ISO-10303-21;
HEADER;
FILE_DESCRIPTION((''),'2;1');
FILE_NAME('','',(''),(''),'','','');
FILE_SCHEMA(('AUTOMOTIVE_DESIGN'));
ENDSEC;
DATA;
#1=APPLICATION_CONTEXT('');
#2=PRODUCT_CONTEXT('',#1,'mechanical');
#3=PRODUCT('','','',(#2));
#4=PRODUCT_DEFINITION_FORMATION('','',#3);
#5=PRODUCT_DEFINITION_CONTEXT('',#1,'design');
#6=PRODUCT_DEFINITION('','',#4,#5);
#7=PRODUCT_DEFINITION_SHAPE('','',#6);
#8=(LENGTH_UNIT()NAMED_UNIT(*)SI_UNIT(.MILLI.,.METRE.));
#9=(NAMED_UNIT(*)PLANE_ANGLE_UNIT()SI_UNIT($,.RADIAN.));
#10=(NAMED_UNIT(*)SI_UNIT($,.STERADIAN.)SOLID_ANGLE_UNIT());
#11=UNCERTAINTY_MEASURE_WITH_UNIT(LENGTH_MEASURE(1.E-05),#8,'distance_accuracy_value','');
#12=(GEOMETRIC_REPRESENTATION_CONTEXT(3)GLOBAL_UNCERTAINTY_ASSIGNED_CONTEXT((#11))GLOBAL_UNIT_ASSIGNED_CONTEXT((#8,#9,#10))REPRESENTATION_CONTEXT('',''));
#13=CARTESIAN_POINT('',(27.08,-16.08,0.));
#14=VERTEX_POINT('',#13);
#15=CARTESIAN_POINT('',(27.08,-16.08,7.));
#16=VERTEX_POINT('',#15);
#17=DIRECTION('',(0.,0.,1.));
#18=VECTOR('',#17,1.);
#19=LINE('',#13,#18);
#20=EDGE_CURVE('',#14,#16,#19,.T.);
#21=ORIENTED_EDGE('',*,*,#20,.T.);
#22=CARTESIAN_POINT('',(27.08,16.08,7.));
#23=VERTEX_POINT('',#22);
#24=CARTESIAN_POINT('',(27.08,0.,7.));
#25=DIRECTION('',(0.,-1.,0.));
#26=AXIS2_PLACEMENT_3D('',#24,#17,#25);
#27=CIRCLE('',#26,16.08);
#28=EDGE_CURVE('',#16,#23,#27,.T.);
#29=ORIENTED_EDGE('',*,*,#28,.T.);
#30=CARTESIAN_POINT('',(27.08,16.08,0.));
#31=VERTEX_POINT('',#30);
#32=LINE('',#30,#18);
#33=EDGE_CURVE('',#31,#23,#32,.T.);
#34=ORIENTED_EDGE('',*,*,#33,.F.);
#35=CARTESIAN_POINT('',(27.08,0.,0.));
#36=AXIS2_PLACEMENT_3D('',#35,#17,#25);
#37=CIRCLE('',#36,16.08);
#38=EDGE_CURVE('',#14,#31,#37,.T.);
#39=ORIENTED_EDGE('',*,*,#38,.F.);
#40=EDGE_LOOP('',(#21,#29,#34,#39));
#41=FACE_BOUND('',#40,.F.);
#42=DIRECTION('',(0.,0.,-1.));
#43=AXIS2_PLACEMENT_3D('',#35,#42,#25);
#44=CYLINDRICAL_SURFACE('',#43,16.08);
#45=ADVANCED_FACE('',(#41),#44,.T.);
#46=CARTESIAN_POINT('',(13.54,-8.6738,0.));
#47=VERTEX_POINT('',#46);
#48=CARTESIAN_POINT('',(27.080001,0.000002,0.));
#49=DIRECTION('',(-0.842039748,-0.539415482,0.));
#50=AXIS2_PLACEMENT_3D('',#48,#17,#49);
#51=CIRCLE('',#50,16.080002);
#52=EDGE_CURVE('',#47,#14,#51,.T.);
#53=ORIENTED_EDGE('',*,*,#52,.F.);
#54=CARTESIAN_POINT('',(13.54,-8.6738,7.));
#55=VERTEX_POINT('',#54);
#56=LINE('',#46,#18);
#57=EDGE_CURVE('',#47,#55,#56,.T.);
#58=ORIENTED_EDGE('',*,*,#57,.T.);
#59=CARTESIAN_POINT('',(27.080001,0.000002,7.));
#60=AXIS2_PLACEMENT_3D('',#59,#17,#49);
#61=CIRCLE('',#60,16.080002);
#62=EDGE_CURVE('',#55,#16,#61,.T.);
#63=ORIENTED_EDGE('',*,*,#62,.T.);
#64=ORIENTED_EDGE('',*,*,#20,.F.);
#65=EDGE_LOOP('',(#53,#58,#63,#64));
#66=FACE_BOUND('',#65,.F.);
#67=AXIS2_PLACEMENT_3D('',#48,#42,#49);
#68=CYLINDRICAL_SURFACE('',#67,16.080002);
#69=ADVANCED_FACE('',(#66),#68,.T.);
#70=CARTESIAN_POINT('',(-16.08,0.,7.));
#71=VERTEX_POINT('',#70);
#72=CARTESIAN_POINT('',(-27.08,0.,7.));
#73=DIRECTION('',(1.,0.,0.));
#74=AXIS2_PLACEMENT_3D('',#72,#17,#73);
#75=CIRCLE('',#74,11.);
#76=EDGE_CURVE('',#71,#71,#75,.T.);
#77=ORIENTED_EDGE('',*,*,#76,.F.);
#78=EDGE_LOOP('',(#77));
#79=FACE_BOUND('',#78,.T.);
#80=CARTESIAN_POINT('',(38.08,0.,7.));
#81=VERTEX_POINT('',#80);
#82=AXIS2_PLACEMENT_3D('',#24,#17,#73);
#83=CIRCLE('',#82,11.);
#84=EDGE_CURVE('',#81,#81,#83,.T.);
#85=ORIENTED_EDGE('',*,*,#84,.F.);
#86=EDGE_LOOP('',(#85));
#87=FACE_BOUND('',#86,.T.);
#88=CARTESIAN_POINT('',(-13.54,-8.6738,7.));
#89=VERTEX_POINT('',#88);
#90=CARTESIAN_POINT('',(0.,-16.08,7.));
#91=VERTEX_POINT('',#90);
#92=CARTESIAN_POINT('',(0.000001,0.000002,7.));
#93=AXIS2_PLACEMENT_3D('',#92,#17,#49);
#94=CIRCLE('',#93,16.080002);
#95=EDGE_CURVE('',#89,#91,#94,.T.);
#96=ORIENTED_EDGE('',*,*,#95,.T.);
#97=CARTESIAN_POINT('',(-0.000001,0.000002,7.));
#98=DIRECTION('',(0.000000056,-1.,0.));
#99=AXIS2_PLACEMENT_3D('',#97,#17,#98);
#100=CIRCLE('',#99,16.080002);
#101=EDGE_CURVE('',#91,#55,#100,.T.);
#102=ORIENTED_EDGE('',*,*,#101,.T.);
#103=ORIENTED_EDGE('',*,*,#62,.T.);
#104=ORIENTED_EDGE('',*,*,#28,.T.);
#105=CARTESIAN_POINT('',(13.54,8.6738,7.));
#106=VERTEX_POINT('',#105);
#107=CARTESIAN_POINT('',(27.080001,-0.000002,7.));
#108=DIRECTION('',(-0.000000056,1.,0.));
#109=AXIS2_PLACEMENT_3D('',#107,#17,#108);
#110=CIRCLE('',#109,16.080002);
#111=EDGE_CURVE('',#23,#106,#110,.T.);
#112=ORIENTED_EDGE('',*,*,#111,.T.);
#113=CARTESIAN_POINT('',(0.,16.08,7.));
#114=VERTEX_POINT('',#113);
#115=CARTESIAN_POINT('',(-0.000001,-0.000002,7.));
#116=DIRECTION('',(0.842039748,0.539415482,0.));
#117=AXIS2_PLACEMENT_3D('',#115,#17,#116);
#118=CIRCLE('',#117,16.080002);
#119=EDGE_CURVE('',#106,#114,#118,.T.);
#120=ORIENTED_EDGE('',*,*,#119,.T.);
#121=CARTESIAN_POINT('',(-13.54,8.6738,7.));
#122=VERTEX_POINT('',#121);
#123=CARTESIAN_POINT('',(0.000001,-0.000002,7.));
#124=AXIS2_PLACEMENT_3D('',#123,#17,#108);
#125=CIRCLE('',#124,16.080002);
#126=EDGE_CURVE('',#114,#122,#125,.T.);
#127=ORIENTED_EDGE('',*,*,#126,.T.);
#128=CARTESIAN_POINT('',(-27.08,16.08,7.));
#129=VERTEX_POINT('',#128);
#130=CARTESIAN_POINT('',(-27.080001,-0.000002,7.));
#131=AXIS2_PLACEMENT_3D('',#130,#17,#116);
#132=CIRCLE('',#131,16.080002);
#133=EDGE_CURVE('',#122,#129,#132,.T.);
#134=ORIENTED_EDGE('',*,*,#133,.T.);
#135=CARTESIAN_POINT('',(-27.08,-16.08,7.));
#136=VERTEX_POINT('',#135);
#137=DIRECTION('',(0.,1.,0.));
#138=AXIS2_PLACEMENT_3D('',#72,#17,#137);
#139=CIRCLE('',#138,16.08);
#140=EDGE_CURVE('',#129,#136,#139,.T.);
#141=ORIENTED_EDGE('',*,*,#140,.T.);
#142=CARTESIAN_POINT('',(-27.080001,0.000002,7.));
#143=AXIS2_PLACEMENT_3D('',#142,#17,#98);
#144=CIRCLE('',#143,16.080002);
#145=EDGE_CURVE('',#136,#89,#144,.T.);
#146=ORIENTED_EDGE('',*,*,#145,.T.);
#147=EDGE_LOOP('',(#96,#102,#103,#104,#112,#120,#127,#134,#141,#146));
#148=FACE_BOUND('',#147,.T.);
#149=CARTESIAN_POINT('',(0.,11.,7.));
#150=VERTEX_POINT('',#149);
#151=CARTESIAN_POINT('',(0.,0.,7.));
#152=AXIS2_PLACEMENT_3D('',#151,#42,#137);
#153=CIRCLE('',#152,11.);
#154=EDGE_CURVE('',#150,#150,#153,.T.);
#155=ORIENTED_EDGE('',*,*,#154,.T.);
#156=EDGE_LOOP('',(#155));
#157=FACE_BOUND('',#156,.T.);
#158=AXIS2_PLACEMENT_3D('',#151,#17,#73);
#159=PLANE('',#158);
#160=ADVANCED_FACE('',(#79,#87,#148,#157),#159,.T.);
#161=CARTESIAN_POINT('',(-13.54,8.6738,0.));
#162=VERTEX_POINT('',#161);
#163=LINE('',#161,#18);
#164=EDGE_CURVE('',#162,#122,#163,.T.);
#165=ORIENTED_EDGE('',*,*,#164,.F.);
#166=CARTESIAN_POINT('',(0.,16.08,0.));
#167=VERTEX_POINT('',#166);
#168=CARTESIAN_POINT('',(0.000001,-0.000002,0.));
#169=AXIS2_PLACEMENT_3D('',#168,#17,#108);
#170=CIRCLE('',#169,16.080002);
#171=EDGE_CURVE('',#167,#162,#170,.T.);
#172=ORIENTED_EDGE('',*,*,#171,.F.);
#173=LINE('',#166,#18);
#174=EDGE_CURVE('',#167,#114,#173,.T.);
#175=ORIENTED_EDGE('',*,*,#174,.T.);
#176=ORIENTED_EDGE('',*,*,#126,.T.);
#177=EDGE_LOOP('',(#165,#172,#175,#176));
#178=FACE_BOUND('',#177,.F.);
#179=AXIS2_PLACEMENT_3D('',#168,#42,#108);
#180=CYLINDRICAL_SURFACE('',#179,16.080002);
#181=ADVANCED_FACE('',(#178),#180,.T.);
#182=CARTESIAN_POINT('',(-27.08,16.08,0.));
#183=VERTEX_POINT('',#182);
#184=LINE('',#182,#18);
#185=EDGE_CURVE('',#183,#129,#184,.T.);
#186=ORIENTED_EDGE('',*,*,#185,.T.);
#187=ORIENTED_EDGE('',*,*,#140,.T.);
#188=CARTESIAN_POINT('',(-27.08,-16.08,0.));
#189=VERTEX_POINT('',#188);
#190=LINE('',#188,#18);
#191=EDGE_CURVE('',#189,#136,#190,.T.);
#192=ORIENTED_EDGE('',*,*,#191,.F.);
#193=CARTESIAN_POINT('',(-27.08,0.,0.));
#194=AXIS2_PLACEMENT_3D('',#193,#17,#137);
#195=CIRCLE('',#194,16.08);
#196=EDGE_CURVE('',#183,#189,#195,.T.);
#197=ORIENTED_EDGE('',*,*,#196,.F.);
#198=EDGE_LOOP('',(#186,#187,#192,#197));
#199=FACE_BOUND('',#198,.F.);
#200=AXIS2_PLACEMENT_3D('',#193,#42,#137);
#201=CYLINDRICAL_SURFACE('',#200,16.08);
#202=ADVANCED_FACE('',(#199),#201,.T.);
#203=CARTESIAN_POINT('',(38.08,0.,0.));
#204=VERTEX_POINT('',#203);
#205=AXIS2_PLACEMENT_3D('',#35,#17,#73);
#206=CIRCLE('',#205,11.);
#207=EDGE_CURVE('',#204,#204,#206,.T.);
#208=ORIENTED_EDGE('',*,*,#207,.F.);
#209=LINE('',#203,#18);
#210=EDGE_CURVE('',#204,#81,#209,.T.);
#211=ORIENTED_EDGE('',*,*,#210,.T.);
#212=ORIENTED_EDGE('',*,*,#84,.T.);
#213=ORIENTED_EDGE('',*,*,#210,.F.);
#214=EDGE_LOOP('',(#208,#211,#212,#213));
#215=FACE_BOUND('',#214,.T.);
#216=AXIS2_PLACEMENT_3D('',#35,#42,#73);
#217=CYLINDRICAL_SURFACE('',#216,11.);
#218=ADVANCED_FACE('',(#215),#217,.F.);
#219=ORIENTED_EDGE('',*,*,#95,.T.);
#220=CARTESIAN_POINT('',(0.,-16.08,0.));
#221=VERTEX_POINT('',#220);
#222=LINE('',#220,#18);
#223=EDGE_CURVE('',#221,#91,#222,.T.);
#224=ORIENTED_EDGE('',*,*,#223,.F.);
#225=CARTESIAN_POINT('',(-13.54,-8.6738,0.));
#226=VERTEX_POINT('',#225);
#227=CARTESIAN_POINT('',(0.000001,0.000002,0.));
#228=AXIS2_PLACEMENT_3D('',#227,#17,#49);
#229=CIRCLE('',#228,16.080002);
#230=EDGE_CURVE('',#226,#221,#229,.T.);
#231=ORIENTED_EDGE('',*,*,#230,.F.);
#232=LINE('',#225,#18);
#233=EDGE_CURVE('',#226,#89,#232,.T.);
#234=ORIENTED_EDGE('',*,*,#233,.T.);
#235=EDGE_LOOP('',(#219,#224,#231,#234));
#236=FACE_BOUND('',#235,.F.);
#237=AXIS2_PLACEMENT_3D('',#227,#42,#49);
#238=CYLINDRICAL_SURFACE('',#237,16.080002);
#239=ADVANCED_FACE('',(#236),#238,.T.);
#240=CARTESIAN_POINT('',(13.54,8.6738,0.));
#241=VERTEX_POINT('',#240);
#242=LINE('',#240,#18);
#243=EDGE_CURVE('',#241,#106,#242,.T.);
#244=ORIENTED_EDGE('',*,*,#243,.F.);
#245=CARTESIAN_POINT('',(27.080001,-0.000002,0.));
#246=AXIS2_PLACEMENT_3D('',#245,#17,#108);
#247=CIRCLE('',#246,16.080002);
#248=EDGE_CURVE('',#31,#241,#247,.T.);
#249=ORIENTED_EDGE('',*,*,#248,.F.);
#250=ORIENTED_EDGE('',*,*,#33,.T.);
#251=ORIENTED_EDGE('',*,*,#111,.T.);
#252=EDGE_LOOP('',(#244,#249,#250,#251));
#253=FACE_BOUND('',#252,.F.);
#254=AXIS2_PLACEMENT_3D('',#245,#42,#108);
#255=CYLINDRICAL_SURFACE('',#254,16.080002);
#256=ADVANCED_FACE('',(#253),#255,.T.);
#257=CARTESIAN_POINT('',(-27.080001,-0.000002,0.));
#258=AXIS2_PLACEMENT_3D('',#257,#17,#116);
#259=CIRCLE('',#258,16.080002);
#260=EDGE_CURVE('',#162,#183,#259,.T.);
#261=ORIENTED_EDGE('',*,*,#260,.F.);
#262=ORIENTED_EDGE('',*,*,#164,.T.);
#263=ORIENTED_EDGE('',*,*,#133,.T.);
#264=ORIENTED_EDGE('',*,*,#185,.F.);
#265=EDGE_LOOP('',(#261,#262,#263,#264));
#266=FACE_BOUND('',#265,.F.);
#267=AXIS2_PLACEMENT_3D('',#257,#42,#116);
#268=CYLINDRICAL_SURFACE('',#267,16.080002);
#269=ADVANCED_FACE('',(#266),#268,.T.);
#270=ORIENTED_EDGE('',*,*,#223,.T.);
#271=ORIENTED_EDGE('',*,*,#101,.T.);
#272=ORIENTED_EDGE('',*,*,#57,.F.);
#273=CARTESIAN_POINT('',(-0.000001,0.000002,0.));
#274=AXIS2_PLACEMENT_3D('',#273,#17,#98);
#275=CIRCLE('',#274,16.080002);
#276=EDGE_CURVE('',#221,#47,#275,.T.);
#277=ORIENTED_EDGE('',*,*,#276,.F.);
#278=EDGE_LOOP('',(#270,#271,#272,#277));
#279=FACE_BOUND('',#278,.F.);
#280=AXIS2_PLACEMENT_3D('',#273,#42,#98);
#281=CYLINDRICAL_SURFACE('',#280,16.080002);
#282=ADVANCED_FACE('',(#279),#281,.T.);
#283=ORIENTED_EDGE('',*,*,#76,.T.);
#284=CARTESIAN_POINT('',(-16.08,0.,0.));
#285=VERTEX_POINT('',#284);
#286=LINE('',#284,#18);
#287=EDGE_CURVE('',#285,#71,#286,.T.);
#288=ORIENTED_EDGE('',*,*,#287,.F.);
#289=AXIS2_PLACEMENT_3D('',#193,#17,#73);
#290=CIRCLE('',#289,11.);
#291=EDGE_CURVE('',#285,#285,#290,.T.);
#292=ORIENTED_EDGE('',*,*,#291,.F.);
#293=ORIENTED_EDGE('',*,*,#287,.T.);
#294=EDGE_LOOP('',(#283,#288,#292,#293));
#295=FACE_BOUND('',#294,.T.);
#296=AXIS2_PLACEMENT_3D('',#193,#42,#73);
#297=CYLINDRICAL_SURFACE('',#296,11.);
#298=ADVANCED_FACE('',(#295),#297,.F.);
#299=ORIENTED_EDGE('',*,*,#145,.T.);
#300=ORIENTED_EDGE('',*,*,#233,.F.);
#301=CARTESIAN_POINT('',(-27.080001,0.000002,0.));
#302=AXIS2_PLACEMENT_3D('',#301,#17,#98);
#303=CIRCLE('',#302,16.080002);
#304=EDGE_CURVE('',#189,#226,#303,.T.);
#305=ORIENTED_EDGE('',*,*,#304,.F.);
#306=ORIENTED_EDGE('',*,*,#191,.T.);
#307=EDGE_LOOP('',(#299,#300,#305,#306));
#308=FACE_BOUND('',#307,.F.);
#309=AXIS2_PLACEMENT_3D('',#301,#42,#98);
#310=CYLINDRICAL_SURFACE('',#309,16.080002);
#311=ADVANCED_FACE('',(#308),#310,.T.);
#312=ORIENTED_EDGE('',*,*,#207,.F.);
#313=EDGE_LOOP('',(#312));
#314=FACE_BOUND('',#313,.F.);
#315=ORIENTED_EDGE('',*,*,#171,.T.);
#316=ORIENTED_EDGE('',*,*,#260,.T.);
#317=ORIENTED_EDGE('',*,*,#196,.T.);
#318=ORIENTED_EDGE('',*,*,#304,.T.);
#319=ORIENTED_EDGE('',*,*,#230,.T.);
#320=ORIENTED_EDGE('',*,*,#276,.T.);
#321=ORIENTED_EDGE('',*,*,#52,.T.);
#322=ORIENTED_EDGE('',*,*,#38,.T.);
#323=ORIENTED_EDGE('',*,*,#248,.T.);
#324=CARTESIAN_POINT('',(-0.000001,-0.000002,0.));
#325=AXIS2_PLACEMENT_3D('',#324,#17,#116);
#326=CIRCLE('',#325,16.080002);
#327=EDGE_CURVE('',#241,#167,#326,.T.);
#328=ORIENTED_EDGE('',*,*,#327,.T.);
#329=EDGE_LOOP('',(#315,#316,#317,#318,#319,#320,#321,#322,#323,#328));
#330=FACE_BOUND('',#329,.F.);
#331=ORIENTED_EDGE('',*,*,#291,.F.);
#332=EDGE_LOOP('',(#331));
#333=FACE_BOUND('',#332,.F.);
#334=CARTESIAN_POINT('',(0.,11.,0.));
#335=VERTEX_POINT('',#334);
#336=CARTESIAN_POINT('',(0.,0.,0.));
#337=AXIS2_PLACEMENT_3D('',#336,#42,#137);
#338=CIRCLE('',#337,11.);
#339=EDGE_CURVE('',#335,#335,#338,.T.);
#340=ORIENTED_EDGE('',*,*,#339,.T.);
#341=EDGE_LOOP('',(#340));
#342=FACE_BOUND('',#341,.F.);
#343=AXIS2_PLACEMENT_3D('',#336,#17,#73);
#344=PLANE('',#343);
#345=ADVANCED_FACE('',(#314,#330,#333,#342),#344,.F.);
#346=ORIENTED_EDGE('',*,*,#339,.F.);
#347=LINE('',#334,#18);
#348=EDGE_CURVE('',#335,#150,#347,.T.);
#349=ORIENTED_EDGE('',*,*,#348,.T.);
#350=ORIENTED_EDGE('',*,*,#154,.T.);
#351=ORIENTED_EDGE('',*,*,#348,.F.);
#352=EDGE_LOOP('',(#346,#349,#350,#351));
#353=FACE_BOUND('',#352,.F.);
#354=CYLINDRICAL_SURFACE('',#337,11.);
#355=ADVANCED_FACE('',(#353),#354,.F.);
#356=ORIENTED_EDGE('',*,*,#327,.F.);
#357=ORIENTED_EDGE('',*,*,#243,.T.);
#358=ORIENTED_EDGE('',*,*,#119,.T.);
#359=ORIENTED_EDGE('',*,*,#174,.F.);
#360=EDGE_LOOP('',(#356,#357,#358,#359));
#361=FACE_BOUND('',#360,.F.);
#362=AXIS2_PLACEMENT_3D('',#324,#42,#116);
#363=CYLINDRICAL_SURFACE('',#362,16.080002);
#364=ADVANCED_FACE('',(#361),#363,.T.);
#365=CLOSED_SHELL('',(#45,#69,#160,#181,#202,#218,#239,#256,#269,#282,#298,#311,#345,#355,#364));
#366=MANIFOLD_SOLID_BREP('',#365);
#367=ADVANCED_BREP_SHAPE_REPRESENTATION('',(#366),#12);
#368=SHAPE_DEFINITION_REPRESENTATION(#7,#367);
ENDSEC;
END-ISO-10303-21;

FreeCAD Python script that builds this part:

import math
import FreeCAD as App
import Part
import Sketcher
from FreeCAD import Vector

doc = App.newDocument("Part")
body = doc.addObject("PartDesign::Body", "Body")

# Sketch on XY plane
sketch1 = doc.addObject("Sketcher::SketchObject", "Sketch")
body.addObject(sketch1)
sketch1.AttachmentSupport = (doc.XY_Plane, [""])
sketch1.MapMode = "FlatFace"
sketch1.addGeometry([
    Part.ArcOfCircle(Part.Circle(Vector(-27.08, 0, 0), Vector(0, 0, 1), 16.08), math.radians(90), math.radians(270)),  # 0
    Part.ArcOfCircle(Part.Circle(Vector(-27.080001, 0.000002, 0), Vector(0, 0, 1), 16.080002), math.radians(-89.999997), math.radians(-32.643857)),  # 1
    Part.ArcOfCircle(Part.Circle(Vector(0.000001, 0.000002, 0), Vector(0, 0, 1), 16.080002), math.radians(-147.356143), math.radians(-90.000003)),  # 2
    Part.ArcOfCircle(Part.Circle(Vector(-0.000001, 0.000002, 0), Vector(0, 0, 1), 16.080002), math.radians(-89.999997), math.radians(-32.643857)),  # 3
    Part.ArcOfCircle(Part.Circle(Vector(27.080001, 0.000002, 0), Vector(0, 0, 1), 16.080002), math.radians(-147.356143), math.radians(-90.000003)),  # 4
    Part.ArcOfCircle(Part.Circle(Vector(27.08, 0, 0), Vector(0, 0, 1), 16.08), math.radians(-90), math.radians(90)),  # 5
    Part.ArcOfCircle(Part.Circle(Vector(27.080001, -0.000002, 0), Vector(0, 0, 1), 16.080002), math.radians(90.000003), math.radians(147.356143)),  # 6
    Part.ArcOfCircle(Part.Circle(Vector(-0.000001, -0.000002, 0), Vector(0, 0, 1), 16.080002), math.radians(32.643857), math.radians(89.999997)),  # 7
    Part.ArcOfCircle(Part.Circle(Vector(0.000001, -0.000002, 0), Vector(0, 0, 1), 16.080002), math.radians(90.000003), math.radians(147.356143)),  # 8
    Part.ArcOfCircle(Part.Circle(Vector(-27.080001, -0.000002, 0), Vector(0, 0, 1), 16.080002), math.radians(32.643857), math.radians(89.999997)),  # 9
    Part.Circle(Vector(-27.08, 0, 0), Vector(0, 0, 1), 11),  # 10
    Part.Circle(Vector(0, 0, 0), Vector(0, 0, 1), 11),  # 11
    Part.Circle(Vector(27.08, 0, 0), Vector(0, 0, 1), 11),  # 12
], False)
sketch1.addConstraint([
    Sketcher.Constraint("Tangent", 0, 2, 1, 1),
    Sketcher.Constraint("Coincident", 1, 2, 2, 1),
    Sketcher.Constraint("Tangent", 2, 2, 3, 1),
    Sketcher.Constraint("Coincident", 3, 2, 4, 1),
    Sketcher.Constraint("Tangent", 4, 2, 5, 1),
    Sketcher.Constraint("Tangent", 5, 2, 6, 1),
    Sketcher.Constraint("Coincident", 6, 2, 7, 1),
    Sketcher.Constraint("Tangent", 7, 2, 8, 1),
    Sketcher.Constraint("Coincident", 8, 2, 9, 1),
    Sketcher.Constraint("Tangent", 9, 2, 0, 1),
    Sketcher.Constraint("Coincident", 2, 3, -1, 1),
    Sketcher.Constraint("Coincident", 7, 3, -1, 1),
    Sketcher.Constraint("Coincident", 11, 3, -1, 1),
    Sketcher.Constraint("Coincident", 10, 3, 0, 3),
    Sketcher.Constraint("Coincident", 12, 3, 4, 3),
    Sketcher.Constraint("Equal", 1, 2),
    Sketcher.Constraint("Equal", 2, 3),
    Sketcher.Constraint("Equal", 3, 4),
    Sketcher.Constraint("Equal", 0, 5),
    Sketcher.Constraint("Equal", 4, 6),
    Sketcher.Constraint("Equal", 6, 7),
    Sketcher.Constraint("Equal", 7, 8),
    Sketcher.Constraint("Equal", 8, 9),
    Sketcher.Constraint("Equal", 10, 11),
    Sketcher.Constraint("Equal", 11, 12),
    Sketcher.Constraint("Symmetric", 0, 3, 4, 3, -1, 1),
    Sketcher.Constraint("Symmetric", 0, 2, 5, 2, -1, 1),
    Sketcher.Constraint("Symmetric", 0, 2, 4, 2, -2),
    Sketcher.Constraint("PointOnObject", 2, 2, -2),
    Sketcher.Constraint("PointOnObject", 7, 2, -2),
    Sketcher.Constraint("Vertical", 10, 3, 0, 2),
    Sketcher.Constraint("Vertical", 0, 2, 9, 2),
    Sketcher.Constraint("Diameter", 10, 22.0),
    Sketcher.Constraint("Radius", 0, 16.08),
    Sketcher.Constraint("DistanceX", 0, 3, -1, 1, 27.08),
])
pad1 = doc.addObject("PartDesign::Pad", "Pad")
body.addObject(pad1)
pad1.Profile = sketch1
pad1.Length = 7

doc.recompute()
